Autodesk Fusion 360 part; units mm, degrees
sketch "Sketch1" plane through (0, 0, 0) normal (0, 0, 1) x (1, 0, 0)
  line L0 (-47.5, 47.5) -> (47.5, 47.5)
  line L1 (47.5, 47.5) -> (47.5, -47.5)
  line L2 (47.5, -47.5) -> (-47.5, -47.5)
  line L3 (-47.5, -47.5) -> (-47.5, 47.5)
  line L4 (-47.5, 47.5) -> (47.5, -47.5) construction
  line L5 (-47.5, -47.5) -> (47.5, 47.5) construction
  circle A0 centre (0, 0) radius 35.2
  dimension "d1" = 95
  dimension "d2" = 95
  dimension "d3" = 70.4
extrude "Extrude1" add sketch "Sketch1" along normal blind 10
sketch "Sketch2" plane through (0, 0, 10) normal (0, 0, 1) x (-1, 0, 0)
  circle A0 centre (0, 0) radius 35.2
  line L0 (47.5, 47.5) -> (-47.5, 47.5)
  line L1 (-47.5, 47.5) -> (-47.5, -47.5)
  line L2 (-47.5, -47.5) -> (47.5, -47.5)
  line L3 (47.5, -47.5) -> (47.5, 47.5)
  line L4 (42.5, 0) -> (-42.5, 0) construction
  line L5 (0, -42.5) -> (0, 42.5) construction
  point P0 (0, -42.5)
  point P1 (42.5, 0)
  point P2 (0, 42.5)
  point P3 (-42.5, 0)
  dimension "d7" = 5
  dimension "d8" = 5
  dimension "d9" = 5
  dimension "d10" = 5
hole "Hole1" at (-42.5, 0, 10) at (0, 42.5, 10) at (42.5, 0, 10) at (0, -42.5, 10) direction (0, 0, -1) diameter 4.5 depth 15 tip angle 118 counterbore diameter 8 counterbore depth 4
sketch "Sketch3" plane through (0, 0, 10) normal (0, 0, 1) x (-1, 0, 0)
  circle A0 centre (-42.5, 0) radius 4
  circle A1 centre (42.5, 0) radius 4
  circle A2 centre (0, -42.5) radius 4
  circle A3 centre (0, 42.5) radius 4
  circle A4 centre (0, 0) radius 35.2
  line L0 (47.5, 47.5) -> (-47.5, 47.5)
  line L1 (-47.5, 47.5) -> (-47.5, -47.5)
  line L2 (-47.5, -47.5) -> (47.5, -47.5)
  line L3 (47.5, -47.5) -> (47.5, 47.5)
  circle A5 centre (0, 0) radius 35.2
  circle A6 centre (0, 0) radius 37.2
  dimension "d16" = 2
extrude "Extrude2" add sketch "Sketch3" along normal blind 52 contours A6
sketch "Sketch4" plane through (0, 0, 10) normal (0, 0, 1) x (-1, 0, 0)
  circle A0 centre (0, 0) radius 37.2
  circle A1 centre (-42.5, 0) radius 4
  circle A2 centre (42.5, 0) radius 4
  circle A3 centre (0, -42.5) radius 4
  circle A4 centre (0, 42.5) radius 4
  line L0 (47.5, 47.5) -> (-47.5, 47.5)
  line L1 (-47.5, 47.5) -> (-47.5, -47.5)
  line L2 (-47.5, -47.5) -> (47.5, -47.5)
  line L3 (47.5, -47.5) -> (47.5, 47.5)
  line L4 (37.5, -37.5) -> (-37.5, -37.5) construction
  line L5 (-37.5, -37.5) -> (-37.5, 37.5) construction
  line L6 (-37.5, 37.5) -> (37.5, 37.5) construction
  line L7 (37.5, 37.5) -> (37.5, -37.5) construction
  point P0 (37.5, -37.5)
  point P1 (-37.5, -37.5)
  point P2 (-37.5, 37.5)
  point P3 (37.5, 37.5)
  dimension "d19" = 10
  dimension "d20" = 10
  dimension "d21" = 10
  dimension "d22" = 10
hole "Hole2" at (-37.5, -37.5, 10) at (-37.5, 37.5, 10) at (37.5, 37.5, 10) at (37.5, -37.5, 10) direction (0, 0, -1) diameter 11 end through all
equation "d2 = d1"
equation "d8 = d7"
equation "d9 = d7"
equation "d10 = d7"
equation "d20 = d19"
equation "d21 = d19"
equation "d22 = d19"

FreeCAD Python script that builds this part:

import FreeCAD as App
import Part
import Sketcher

V = App.Vector
Q = App.Units.Quantity


def add_polygon(sketch, points):
    """Adds a closed chain of lines whose ends are joined by coincident constraints."""
    first, n = sketch.GeometryCount, len(points)
    for a, b in zip(points, points[1:] + points[:1]):
        sketch.addGeometry(Part.LineSegment(App.Vector(*a, 0), App.Vector(*b, 0)), False)
    for i in range(n):
        sketch.addConstraint(Sketcher.Constraint("Coincident", first + i, 2, first + (i + 1) % n, 1))

doc = App.newDocument("Part")
body = doc.addObject("PartDesign::Body", "Body")

sketch1 = body.newObject("Sketcher::SketchObject", "Sketch")
sketch1.AttachmentSupport = (doc.getObject("XY_Plane"), [""])
sketch1.MapMode = "FlatFace"
add_polygon(sketch1, [(48, 48), (-48, 48), (-48, -48), (48, -48)])
sketch1.addGeometry(Part.Circle(V(0, 0, 0), V(0, 0, 1), 35), False)
sketch1.addConstraint(Sketcher.Constraint("Horizontal", 0))
sketch1.addConstraint(Sketcher.Constraint("Vertical", 1))
sketch1.addConstraint(Sketcher.Constraint("Horizontal", 2))
sketch1.addConstraint(Sketcher.Constraint("Vertical", 3))
sketch1.addConstraint(Sketcher.Constraint("Coincident", 4, 3, -1, 1))
sketch1.addConstraint(Sketcher.Constraint("Symmetric", 0, 2, 2, 2, -1, 1))
sketch1.addConstraint(Sketcher.Constraint("Equal", 2, 1))
sketch1.addConstraint(Sketcher.Constraint("Diameter", 4, Q("70.4 mm")))
sketch1.addConstraint(Sketcher.Constraint("DistanceX", 0, 2, 0, 1, Q("95 mm")))
pad1 = body.newObject("PartDesign::Pad", "Pad")
pad1.Profile = sketch1
pad1.Length = 10

sketch2 = body.newObject("Sketcher::SketchObject", "Sketch001")
sketch2.AttachmentSupport = (doc.getObject("XY_Plane"), [""])
sketch2.MapMode = "FlatFace"
sketch2.AttachmentOffset = App.Placement(V(0, 0, 10), App.Rotation())
sketch2.addGeometry(Part.Circle(V(-42.5, 0, 0), V(0, 0, 1), 2.2), False)
sketch2.addGeometry(Part.Circle(V(0, 42.5, 0), V(0, 0, 1), 2.2), False)
sketch2.addGeometry(Part.Circle(V(42.5, 0, 0), V(0, 0, 1), 2.2), False)
sketch2.addGeometry(Part.Circle(V(0, -42.5, 0), V(0, 0, 1), 2.2), False)
sketch2.addConstraint(Sketcher.Constraint("Equal", 0, 1))
sketch2.addConstraint(Sketcher.Constraint("Equal", 1, 2))
sketch2.addConstraint(Sketcher.Constraint("Equal", 2, 3))
sketch2.addConstraint(Sketcher.Constraint("Symmetric", 0, 3, 2, 3, -1, 1))
sketch2.addConstraint(Sketcher.Constraint("Symmetric", 1, 3, 3, 3, -1, 1))
sketch2.addConstraint(Sketcher.Constraint("PointOnObject", 0, 3, -1))
sketch2.addConstraint(Sketcher.Constraint("PointOnObject", 1, 3, -2))
sketch2.addConstraint(Sketcher.Constraint("Diameter", 0, Q("4.5 mm")))
sketch2.addConstraint(Sketcher.Constraint("DistanceX", 0, 3, 2, 3, Q("85 mm")))
sketch2.addConstraint(Sketcher.Constraint("DistanceY", 3, 3, 1, 3, Q("85 mm")))
doc.recompute()
hole = body.newObject("PartDesign::Hole", "Hole")
hole.Profile = sketch2
hole.ThreadType = "None"
hole.Diameter = 4.5
hole.DepthType = "Dimension"
hole.Depth = 15
hole.DrillPoint = "Angled"
hole.DrillPointAngle = 118
hole.HoleCutType = "Counterbore"
hole.HoleCutDiameter = 8
hole.HoleCutDepth = 4

sketch3 = body.newObject("Sketcher::SketchObject", "Sketch002")
sketch3.AttachmentSupport = (doc.getObject("XY_Plane"), [""])
sketch3.MapMode = "FlatFace"
sketch3.AttachmentOffset = App.Placement(V(0, 0, 10), App.Rotation())
sketch3.addGeometry(Part.Circle(V(0, 0, 0), V(0, 0, 1), 37), False)
sketch3.addGeometry(Part.Circle(V(0, 0, 0), V(0, 0, 1), 35), False)
sketch3.addConstraint(Sketcher.Constraint("Coincident", 0, 3, -1, 1))
sketch3.addConstraint(Sketcher.Constraint("Coincident", 1, 3, -1, 1))
sketch3.addConstraint(Sketcher.Constraint("Diameter", 0, Q("74.4 mm")))
sketch3.addConstraint(Sketcher.Constraint("Diameter", 1, Q("70.4 mm")))
pad2 = body.newObject("PartDesign::Pad", "Pad001")
pad2.Profile = sketch3
pad2.Length = 52

sketch4 = body.newObject("Sketcher::SketchObject", "Sketch003")
sketch4.AttachmentSupport = (doc.getObject("XY_Plane"), [""])
sketch4.MapMode = "FlatFace"
sketch4.AttachmentOffset = App.Placement(V(0, 0, 10), App.Rotation())
sketch4.addGeometry(Part.Circle(V(-38, -38, 0), V(0, 0, 1), 6), False)
sketch4.addGeometry(Part.Circle(V(-38, 38, 0), V(0, 0, 1), 6), False)
sketch4.addGeometry(Part.Circle(V(38, 38, 0), V(0, 0, 1), 6), False)
sketch4.addGeometry(Part.Circle(V(38, -38, 0), V(0, 0, 1), 6), False)
sketch4.addConstraint(Sketcher.Constraint("Equal", 0, 1))
sketch4.addConstraint(Sketcher.Constraint("Equal", 1, 2))
sketch4.addConstraint(Sketcher.Constraint("Equal", 2, 3))
sketch4.addConstraint(Sketcher.Constraint("Symmetric", 0, 3, 2, 3, -1, 1))
sketch4.addConstraint(Sketcher.Constraint("Symmetric", 1, 3, 3, 3, -1, 1))
sketch4.addConstraint(Sketcher.Constraint("Symmetric", 1, 3, 2, 3, -2))
sketch4.addConstraint(Sketcher.Constraint("Diameter", 0, Q("11 mm")))
sketch4.addConstraint(Sketcher.Constraint("DistanceY", 0, 3, 1, 3, Q("75 mm")))
sketch4.addConstraint(Sketcher.Constraint("DistanceX", 1, 3, 2, 3, Q("75 mm")))
doc.recompute()
hole2 = body.newObject("PartDesign::Hole", "Hole001")
hole2.Profile = sketch4
hole2.ThreadType = "None"
hole2.Diameter = 11
hole2.DepthType = "ThroughAll"

doc.recompute()
